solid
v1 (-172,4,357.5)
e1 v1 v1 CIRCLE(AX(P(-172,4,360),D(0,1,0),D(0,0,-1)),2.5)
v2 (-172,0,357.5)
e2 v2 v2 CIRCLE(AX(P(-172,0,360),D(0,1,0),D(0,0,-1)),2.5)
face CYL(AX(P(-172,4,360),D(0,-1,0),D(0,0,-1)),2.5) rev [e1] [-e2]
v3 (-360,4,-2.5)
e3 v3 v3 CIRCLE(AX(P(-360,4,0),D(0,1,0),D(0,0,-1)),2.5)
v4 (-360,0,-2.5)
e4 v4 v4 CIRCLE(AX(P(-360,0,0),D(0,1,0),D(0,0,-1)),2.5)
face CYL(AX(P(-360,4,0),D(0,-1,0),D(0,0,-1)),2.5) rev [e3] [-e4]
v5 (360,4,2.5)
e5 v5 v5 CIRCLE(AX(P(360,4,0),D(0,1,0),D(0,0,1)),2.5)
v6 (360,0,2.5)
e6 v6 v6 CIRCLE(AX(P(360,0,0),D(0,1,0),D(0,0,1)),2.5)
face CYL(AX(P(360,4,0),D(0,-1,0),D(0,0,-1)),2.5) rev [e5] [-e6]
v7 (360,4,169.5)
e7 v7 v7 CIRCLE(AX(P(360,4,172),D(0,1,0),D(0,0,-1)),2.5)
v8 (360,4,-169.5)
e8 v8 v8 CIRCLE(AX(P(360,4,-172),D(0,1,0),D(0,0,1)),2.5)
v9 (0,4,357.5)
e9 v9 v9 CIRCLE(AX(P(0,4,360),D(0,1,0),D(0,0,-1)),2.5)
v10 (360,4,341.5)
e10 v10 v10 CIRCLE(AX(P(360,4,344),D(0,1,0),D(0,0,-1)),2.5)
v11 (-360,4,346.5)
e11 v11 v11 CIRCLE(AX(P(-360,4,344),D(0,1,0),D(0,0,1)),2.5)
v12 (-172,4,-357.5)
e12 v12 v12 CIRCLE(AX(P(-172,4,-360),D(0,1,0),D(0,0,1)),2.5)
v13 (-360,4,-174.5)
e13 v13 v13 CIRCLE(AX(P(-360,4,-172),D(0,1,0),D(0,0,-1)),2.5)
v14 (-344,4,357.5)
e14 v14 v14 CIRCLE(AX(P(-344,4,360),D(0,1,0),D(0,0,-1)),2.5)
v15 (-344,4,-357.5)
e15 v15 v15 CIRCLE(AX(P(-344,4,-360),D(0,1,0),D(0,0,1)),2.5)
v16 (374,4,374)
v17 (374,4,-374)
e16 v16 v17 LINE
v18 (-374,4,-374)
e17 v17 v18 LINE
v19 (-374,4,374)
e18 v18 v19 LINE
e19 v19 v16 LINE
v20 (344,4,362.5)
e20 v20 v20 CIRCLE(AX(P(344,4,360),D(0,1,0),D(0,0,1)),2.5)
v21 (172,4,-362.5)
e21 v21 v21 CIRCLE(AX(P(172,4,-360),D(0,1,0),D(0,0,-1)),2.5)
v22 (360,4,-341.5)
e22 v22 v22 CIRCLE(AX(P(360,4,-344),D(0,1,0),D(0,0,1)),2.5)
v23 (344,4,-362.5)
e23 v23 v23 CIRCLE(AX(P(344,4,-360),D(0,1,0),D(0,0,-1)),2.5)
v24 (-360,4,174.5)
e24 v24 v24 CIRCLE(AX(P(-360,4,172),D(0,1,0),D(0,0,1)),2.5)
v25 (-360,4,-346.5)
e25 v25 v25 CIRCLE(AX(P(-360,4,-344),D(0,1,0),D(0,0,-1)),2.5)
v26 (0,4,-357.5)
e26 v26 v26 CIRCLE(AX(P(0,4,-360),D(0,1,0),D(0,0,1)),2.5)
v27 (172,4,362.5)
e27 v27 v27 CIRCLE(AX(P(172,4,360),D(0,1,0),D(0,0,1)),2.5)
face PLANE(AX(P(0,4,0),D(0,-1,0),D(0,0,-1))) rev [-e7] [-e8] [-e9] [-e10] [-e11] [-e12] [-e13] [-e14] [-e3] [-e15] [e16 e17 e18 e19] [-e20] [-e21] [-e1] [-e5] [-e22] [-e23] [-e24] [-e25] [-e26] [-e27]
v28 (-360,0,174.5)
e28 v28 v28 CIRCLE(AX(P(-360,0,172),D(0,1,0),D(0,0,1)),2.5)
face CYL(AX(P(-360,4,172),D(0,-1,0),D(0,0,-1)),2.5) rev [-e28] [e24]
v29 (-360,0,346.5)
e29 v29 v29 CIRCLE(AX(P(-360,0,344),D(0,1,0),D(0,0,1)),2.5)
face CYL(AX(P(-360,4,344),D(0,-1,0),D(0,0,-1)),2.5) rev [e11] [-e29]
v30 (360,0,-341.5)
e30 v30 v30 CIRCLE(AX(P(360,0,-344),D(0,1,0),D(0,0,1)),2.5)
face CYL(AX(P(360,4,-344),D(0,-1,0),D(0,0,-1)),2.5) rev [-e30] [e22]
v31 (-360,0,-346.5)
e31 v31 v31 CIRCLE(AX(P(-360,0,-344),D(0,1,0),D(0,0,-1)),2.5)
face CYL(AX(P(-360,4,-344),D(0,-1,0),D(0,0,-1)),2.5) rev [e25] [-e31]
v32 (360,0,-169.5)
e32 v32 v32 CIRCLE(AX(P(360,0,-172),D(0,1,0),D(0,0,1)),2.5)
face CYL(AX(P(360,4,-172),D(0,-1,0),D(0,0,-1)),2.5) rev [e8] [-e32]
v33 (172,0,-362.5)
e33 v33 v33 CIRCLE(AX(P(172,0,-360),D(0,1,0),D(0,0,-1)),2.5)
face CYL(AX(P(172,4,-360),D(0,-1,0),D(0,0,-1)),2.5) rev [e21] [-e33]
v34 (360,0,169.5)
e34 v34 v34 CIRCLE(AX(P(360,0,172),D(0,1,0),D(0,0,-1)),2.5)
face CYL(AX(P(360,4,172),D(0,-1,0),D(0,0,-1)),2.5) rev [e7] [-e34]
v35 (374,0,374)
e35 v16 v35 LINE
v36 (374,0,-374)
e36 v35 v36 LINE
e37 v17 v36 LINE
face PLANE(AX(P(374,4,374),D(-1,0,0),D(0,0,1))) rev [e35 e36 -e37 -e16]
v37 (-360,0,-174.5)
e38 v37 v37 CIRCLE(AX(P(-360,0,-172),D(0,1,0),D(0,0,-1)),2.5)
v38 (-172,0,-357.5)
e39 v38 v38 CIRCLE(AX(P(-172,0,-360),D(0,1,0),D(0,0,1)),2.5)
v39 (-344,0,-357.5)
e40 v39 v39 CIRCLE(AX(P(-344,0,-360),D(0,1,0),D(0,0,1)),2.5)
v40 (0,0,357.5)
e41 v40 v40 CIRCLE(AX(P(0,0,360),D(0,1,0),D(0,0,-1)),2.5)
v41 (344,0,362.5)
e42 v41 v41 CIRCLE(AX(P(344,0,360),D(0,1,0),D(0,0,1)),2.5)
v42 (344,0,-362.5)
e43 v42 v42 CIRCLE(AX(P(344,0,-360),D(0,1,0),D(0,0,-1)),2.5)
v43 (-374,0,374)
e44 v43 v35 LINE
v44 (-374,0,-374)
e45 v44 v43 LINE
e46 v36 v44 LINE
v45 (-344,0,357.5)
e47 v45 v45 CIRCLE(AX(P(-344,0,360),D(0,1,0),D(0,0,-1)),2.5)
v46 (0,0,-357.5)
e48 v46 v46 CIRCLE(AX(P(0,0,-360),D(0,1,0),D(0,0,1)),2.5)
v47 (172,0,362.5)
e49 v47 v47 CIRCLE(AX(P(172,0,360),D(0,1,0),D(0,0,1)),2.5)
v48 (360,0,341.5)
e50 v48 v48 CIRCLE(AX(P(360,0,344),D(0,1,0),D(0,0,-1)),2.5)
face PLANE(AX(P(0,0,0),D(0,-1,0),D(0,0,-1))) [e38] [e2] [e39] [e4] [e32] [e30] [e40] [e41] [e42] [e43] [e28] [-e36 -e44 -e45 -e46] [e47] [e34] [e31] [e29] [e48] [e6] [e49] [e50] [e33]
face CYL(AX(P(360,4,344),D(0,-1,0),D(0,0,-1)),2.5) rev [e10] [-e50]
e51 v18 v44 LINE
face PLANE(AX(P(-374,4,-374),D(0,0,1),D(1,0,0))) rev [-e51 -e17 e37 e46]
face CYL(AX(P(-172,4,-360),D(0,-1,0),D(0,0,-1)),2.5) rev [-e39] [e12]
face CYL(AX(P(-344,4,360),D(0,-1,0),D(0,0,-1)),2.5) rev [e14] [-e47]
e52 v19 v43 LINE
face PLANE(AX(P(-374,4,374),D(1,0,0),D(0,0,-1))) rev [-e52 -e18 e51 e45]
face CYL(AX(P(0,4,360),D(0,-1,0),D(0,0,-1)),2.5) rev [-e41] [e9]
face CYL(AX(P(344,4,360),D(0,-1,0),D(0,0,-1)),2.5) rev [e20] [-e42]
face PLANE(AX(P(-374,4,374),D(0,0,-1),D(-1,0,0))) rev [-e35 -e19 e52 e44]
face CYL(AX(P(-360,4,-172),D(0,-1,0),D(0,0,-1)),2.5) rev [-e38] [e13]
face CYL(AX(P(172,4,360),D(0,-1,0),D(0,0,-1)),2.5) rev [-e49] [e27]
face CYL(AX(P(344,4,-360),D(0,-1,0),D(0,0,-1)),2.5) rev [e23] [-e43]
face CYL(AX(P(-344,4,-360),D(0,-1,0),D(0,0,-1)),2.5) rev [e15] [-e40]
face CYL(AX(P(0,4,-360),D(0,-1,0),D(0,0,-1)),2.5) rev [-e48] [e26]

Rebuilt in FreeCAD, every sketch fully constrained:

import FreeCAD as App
import Part
import Sketcher

V = App.Vector
Q = App.Units.Quantity

doc = App.newDocument("Part")
body = doc.addObject("PartDesign::Body", "Body")

sketch1 = body.newObject("Sketcher::SketchObject", "Sketch")
sketch1.AttachmentSupport = (doc.getObject("XZ_Plane"), [""])
sketch1.MapMode = "FlatFace"
sketch1.addGeometry([
    Part.LineSegment(V(-374, -374, 0), V(-374, 374, 0)),
    Part.LineSegment(V(-374, 374, 0), V(374, 374, 0)),
    Part.LineSegment(V(374, 374, 0), V(374, -374, 0)),
    Part.LineSegment(V(374, -374, 0), V(-374, -374, 0)),
    Part.Circle(V(-344, 360, 0), V(0, 0, 1), 2.5),
    Part.Circle(V(-360, 344, 0), V(0, 0, 1), 2.5),
    Part.Circle(V(-172, 360, 0), V(0, 0, 1), 2.5),
    Part.Circle(V(0, 360, 0), V(0, 0, 1), 2.5),
    Part.Circle(V(-360, 172, 0), V(0, 0, 1), 2.5),
    Part.Circle(V(-360, 0, 0), V(0, 0, 1), 2.5),
    Part.Circle(V(172, 360, 0), V(0, 0, 1), 2.5),
    Part.Circle(V(344, 360, 0), V(0, 0, 1), 2.5),
    Part.Circle(V(360, 344, 0), V(0, 0, 1), 2.5),
    Part.Circle(V(360, 172, 0), V(0, 0, 1), 2.5),
    Part.Circle(V(360, 0, 0), V(0, 0, 1), 2.5),
    Part.Circle(V(-360, -172, 0), V(0, 0, 1), 2.5),
    Part.Circle(V(-360, -344, 0), V(0, 0, 1), 2.5),
    Part.Circle(V(-344, -360, 0), V(0, 0, 1), 2.5),
    Part.Circle(V(-172, -360, 0), V(0, 0, 1), 2.5),
    Part.Circle(V(0, -360, 0), V(0, 0, 1), 2.5),
    Part.Circle(V(360, -172, 0), V(0, 0, 1), 2.5),
    Part.Circle(V(172, -360, 0), V(0, 0, 1), 2.5),
    Part.Circle(V(360, -344, 0), V(0, 0, 1), 2.5),
    Part.Circle(V(344, -360, 0), V(0, 0, 1), 2.5),
], False)
sketch1.addConstraint([
    Sketcher.Constraint("Coincident", 0, 2, 1, 1),
    Sketcher.Constraint("Coincident", 1, 2, 2, 1),
    Sketcher.Constraint("Coincident", 2, 2, 3, 1),
    Sketcher.Constraint("Coincident", 3, 2, 0, 1),
    Sketcher.Constraint("Vertical", 0),
    Sketcher.Constraint("Horizontal", 1),
    Sketcher.Constraint("Vertical", 2),
    Sketcher.Constraint("Horizontal", 3),
    Sketcher.Constraint("Equal", 4, 5),
    Sketcher.Constraint("Equal", 5, 6),
    Sketcher.Constraint("Equal", 6, 7),
    Sketcher.Constraint("Equal", 7, 8),
    Sketcher.Constraint("Equal", 8, 9),
    Sketcher.Constraint("Equal", 9, 10),
    Sketcher.Constraint("Equal", 10, 11),
    Sketcher.Constraint("Equal", 11, 12),
    Sketcher.Constraint("Equal", 12, 13),
    Sketcher.Constraint("Equal", 13, 14),
    Sketcher.Constraint("Equal", 14, 15),
    Sketcher.Constraint("Equal", 15, 16),
    Sketcher.Constraint("Equal", 16, 17),
    Sketcher.Constraint("Equal", 17, 18),
    Sketcher.Constraint("Equal", 18, 19),
    Sketcher.Constraint("Equal", 19, 20),
    Sketcher.Constraint("Equal", 20, 21),
    Sketcher.Constraint("Equal", 21, 22),
    Sketcher.Constraint("Equal", 22, 23),
    Sketcher.Constraint("Symmetric", 9, 3, 14, 3, -1, 1),
    Sketcher.Constraint("Symmetric", 13, 3, 15, 3, -1, 1),
    Sketcher.Constraint("Symmetric", 12, 3, 16, 3, -1, 1),
    Sketcher.Constraint("Symmetric", 11, 3, 17, 3, -1, 1),
    Sketcher.Constraint("Symmetric", 10, 3, 18, 3, -1, 1),
    Sketcher.Constraint("Symmetric", 7, 3, 19, 3, -1, 1),
    Sketcher.Constraint("Symmetric", 8, 3, 20, 3, -1, 1),
    Sketcher.Constraint("Symmetric", 6, 3, 21, 3, -1, 1),
    Sketcher.Constraint("Symmetric", 5, 3, 22, 3, -1, 1),
    Sketcher.Constraint("Symmetric", 4, 3, 23, 3, -1, 1),
    Sketcher.Constraint("Symmetric", 0, 2, 2, 2, -1, 1),
    Sketcher.Constraint("Symmetric", 6, 3, 10, 3, -2),
    Sketcher.Constraint("Symmetric", 4, 3, 11, 3, -2),
    Sketcher.Constraint("Symmetric", 5, 3, 12, 3, -2),
    Sketcher.Constraint("Symmetric", 8, 3, 13, 3, -2),
    Sketcher.Constraint("PointOnObject", 7, 3, -2),
    Sketcher.Constraint("PointOnObject", 9, 3, -1),
    Sketcher.Constraint("Horizontal", 4, 3, 6, 3),
    Sketcher.Constraint("Horizontal", 6, 3, 7, 3),
    Sketcher.Constraint("Vertical", 5, 3, 8, 3),
    Sketcher.Constraint("Vertical", 8, 3, 9, 3),
    Sketcher.Constraint("Equal", 3, 0),
    Sketcher.Constraint("Diameter", 4, Q("5 mm")),
    Sketcher.Constraint("DistanceX", 1, 1, 1, 2, Q("748 mm")),
    Sketcher.Constraint("DistanceX", 4, 3, -1, 1, Q("344 mm")),
    Sketcher.Constraint("DistanceY", -1, 1, 4, 3, Q("360 mm")),
    Sketcher.Constraint("DistanceX", 5, 3, -1, 1, Q("360 mm")),
    Sketcher.Constraint("DistanceY", -1, 1, 5, 3, Q("344 mm")),
    Sketcher.Constraint("DistanceX", 6, 3, -1, 1, Q("172 mm")),
    Sketcher.Constraint("DistanceY", -1, 1, 8, 3, Q("172 mm")),
])
pad1 = body.newObject("PartDesign::Pad", "Pad")
pad1.Profile = sketch1
pad1.Length = 4
pad1.Reversed = True

doc.recompute()
